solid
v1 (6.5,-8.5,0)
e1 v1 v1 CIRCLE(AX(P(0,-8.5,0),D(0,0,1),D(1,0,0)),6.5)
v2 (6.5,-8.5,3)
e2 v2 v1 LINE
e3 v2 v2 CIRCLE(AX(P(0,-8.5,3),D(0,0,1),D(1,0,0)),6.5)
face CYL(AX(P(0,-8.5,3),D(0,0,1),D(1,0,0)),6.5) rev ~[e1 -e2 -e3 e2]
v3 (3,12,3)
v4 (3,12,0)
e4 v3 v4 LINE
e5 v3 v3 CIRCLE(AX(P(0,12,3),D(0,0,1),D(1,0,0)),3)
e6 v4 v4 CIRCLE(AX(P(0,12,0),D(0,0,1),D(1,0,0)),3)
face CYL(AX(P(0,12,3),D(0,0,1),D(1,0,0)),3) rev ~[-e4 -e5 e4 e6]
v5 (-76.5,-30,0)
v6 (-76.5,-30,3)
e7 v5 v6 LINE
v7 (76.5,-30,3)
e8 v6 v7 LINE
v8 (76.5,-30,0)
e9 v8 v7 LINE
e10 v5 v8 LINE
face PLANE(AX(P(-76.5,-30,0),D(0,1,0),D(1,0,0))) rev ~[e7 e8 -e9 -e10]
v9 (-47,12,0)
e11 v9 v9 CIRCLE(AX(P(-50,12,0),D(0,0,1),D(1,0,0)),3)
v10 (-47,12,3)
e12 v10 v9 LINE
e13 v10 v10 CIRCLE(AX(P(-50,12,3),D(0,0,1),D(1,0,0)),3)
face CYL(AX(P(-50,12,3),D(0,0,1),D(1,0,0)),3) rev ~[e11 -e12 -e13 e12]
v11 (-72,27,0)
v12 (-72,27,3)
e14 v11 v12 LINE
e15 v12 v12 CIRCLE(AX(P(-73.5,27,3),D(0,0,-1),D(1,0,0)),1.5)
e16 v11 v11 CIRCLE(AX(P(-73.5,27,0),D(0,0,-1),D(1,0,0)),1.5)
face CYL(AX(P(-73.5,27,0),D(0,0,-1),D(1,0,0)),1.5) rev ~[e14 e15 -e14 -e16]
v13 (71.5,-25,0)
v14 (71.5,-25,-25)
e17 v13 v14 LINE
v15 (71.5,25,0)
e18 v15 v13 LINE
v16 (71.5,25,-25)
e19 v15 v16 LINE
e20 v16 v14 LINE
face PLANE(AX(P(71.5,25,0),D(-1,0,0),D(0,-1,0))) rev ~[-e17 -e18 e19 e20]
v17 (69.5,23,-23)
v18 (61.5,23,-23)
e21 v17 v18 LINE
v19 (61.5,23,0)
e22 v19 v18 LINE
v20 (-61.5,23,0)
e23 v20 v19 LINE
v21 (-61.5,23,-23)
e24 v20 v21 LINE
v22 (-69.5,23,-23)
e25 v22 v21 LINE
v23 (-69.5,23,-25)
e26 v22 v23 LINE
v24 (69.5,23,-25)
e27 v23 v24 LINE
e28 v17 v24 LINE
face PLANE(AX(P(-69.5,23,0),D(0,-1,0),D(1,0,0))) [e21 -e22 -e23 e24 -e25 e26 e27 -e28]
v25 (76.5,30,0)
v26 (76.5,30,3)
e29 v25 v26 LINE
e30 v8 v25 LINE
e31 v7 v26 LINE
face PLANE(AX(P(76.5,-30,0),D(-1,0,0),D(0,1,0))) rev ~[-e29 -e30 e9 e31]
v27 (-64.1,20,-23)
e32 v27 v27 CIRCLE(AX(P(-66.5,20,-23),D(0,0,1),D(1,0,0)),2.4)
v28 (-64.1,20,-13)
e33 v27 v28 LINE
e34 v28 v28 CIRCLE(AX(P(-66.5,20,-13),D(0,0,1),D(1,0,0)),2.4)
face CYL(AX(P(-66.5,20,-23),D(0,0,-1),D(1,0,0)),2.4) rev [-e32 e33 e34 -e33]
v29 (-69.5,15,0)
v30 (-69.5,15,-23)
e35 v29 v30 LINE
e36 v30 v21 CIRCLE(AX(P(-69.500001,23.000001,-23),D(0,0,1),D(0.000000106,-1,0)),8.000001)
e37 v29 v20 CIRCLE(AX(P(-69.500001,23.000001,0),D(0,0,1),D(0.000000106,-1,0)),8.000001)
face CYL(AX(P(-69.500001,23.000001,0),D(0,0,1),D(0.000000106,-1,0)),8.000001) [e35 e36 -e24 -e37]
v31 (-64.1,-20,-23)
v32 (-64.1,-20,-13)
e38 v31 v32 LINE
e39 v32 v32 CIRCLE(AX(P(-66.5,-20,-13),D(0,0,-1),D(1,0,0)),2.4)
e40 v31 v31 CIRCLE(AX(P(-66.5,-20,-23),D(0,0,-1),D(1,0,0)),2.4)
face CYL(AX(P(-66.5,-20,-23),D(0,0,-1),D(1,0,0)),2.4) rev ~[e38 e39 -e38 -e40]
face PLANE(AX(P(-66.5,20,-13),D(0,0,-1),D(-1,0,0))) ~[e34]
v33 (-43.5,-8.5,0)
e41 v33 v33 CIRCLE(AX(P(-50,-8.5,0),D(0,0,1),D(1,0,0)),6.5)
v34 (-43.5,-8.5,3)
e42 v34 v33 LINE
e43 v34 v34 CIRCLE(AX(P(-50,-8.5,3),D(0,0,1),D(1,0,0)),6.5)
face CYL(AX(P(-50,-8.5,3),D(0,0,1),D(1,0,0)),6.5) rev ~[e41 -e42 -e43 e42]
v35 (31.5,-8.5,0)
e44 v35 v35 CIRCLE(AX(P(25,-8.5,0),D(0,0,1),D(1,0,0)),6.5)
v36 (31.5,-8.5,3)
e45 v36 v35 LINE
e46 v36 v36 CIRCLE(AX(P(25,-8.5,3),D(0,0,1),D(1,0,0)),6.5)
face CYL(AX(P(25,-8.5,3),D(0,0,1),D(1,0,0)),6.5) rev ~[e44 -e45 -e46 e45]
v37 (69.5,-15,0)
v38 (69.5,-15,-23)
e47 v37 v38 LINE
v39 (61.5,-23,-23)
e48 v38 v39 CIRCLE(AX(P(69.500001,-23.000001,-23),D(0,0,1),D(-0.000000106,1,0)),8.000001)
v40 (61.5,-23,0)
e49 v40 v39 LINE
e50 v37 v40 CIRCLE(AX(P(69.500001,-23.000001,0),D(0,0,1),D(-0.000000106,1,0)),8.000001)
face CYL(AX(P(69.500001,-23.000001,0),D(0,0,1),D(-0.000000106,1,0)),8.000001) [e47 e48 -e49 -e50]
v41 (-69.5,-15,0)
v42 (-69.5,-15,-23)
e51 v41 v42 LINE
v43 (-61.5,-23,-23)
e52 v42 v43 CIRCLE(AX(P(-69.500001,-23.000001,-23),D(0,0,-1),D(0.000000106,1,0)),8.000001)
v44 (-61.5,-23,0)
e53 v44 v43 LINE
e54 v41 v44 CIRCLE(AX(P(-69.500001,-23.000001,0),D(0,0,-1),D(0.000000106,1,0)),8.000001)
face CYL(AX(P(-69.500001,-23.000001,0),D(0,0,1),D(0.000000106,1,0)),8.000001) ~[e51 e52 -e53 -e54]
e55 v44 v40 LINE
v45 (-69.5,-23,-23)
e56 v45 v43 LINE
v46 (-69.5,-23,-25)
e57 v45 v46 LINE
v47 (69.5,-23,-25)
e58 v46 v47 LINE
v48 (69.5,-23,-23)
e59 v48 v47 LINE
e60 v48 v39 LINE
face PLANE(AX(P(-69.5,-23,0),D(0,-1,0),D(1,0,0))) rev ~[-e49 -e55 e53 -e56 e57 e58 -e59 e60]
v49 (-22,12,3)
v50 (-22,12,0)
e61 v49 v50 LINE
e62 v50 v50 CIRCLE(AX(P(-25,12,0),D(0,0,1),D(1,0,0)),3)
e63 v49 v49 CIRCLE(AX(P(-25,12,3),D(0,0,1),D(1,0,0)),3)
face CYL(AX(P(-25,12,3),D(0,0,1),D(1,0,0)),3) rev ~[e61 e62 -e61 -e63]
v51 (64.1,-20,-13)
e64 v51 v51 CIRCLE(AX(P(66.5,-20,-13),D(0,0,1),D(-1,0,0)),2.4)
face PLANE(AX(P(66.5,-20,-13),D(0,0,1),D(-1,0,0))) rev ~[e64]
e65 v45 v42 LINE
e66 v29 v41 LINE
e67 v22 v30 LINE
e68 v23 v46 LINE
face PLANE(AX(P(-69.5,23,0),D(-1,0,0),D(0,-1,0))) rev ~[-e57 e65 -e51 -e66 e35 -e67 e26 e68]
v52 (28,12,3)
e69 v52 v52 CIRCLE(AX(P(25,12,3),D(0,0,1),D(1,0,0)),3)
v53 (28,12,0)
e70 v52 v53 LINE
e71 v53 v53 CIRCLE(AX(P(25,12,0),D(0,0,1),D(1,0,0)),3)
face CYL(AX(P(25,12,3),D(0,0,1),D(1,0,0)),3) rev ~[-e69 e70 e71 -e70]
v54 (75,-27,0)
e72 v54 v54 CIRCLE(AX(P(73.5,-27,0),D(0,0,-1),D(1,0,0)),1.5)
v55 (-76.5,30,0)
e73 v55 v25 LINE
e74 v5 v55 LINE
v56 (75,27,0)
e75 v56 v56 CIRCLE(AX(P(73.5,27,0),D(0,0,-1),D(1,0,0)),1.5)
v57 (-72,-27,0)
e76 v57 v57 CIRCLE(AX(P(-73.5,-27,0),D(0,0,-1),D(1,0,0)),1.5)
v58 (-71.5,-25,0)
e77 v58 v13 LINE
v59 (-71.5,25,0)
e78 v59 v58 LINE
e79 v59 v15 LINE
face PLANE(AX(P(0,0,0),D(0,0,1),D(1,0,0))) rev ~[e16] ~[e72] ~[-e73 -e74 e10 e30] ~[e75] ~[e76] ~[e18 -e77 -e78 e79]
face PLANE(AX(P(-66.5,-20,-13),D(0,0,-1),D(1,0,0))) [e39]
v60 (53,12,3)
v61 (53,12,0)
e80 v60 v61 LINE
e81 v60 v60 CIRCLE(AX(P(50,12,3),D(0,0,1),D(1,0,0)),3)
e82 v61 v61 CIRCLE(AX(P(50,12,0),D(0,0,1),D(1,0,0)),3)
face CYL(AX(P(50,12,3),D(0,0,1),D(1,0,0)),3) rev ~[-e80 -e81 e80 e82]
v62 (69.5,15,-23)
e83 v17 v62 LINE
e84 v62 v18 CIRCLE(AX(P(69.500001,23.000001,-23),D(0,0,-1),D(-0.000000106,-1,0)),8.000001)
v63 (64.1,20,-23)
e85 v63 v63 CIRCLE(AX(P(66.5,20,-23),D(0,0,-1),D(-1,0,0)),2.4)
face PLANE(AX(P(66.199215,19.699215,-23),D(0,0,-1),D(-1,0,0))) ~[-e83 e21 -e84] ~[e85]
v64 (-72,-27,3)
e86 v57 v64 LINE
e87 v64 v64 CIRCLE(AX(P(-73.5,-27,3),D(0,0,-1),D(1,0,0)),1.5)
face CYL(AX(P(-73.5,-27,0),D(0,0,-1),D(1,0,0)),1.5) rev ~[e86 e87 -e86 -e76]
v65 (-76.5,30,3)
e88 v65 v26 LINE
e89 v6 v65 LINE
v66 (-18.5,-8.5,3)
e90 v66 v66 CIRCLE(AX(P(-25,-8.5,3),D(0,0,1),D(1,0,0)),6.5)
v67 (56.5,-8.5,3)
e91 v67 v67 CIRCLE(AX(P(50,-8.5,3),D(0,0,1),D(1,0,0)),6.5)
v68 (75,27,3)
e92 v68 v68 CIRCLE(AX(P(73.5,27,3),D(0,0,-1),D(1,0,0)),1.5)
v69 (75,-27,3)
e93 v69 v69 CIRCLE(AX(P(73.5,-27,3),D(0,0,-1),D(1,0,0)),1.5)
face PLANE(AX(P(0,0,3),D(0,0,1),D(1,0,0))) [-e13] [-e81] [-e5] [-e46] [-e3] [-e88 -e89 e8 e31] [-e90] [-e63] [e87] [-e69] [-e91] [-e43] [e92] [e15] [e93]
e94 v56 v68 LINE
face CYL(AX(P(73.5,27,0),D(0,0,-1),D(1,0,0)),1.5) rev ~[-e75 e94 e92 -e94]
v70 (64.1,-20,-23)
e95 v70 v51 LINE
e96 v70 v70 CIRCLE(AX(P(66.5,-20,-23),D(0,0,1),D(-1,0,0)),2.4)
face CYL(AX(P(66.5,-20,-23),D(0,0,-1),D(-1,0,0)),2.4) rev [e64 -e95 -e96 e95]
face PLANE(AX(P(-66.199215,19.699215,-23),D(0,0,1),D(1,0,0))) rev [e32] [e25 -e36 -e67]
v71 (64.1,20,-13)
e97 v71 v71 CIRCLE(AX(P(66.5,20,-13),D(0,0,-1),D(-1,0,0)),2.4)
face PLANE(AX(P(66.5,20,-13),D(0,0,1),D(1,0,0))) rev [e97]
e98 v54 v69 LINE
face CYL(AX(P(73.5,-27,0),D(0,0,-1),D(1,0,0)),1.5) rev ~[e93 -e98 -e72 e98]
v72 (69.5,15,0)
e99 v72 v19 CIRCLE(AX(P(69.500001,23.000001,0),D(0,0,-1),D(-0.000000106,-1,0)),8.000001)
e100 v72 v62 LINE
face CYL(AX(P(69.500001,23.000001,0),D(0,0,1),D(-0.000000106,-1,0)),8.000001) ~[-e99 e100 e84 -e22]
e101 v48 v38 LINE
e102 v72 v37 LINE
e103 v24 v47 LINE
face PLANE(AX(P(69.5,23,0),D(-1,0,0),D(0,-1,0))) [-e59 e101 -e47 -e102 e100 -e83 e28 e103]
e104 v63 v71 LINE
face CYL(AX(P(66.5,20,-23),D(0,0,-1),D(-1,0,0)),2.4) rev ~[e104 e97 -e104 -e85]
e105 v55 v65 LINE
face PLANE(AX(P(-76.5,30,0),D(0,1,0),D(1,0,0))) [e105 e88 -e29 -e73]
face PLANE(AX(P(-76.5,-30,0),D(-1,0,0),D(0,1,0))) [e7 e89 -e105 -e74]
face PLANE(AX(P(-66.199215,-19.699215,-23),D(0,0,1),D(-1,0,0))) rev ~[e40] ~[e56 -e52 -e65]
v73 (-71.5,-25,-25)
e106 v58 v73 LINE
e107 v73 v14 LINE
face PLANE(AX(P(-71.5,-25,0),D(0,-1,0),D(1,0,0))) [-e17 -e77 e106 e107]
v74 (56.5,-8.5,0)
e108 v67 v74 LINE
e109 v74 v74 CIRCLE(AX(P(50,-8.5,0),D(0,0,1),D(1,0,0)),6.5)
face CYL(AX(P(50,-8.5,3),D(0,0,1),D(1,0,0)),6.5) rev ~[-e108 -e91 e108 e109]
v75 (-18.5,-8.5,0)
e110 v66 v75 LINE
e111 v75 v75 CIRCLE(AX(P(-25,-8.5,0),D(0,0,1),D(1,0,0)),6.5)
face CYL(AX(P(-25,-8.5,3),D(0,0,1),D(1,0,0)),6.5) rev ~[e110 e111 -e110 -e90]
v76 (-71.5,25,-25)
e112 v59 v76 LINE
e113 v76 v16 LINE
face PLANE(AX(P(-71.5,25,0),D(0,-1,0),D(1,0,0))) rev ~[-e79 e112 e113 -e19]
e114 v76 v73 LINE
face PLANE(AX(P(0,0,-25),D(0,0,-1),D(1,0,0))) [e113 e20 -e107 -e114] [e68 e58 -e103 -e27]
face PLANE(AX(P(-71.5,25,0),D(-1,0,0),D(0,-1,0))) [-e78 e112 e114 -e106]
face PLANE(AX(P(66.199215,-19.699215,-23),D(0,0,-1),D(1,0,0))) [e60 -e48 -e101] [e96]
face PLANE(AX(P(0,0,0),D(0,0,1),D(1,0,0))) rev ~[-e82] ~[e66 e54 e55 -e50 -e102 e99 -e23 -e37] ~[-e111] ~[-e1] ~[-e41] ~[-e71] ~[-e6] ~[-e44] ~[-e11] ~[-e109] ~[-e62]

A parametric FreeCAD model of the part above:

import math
import FreeCAD as App
import Part
import Sketcher

doc = App.newDocument("Part")
body = doc.addObject("PartDesign::Body", "Body")

# Sketch on XY plane
sketch1 = doc.addObject("Sketcher::SketchObject", "Sketch")
body.addObject(sketch1)
sketch1.AttachmentSupport = (doc.XY_Plane, [""])
sketch1.MapMode = "FlatFace"
sketch1.addGeometry(Part.LineSegment(App.Vector(-76, 30, 0), App.Vector(-76, -30, 0)), False)
sketch1.addGeometry(Part.LineSegment(App.Vector(-76, -30, 0), App.Vector(76, -30, 0)), False)
sketch1.addGeometry(Part.LineSegment(App.Vector(76, -30, 0), App.Vector(76, 30, 0)), False)
sketch1.addGeometry(Part.LineSegment(App.Vector(76, 30, 0), App.Vector(-76, 30, 0)), False)
sketch1.addConstraint(Sketcher.Constraint("Coincident", 0, 2, 1, 1))
sketch1.addConstraint(Sketcher.Constraint("Coincident", 1, 2, 2, 1))
sketch1.addConstraint(Sketcher.Constraint("Coincident", 2, 2, 3, 1))
sketch1.addConstraint(Sketcher.Constraint("Coincident", 3, 2, 0, 1))
sketch1.addConstraint(Sketcher.Constraint("Vertical", 0))
sketch1.addConstraint(Sketcher.Constraint("Horizontal", 1))
sketch1.addConstraint(Sketcher.Constraint("Vertical", 2))
sketch1.addConstraint(Sketcher.Constraint("Horizontal", 3))
sketch1.addConstraint(Sketcher.Constraint("Symmetric", 0, 2, 2, 2, -1, 1))
sketch1.addConstraint(Sketcher.Constraint("DistanceX", 1, 1, 1, 2, 153.0))
sketch1.addConstraint(Sketcher.Constraint("DistanceY", 0, 2, 0, 1, 60.0))
pad1 = doc.addObject("PartDesign::Pad", "Pad")
body.addObject(pad1)
pad1.Profile = sketch1
pad1.Length = 3

# Sketch on XY plane
sketch2 = doc.addObject("Sketcher::SketchObject", "Sketch001")
body.addObject(sketch2)
sketch2.AttachmentSupport = (doc.XY_Plane, [""])
sketch2.MapMode = "FlatFace"
sketch2.addGeometry(Part.LineSegment(App.Vector(-72, -25, 0), App.Vector(-72, 25, 0)), False)
sketch2.addGeometry(Part.LineSegment(App.Vector(-72, 25, 0), App.Vector(72, 25, 0)), False)
sketch2.addGeometry(Part.LineSegment(App.Vector(72, 25, 0), App.Vector(72, -25, 0)), False)
sketch2.addGeometry(Part.LineSegment(App.Vector(72, -25, 0), App.Vector(-72, -25, 0)), False)
sketch2.addGeometry(Part.LineSegment(App.Vector(70, 23, 0), App.Vector(-70, 23, 0)), False)
sketch2.addGeometry(Part.LineSegment(App.Vector(-70, 23, 0), App.Vector(-70, -23, 0)), False)
sketch2.addGeometry(Part.LineSegment(App.Vector(-70, -23, 0), App.Vector(70, -23, 0)), False)
sketch2.addGeometry(Part.LineSegment(App.Vector(70, -23, 0), App.Vector(70, 23, 0)), False)
sketch2.addConstraint(Sketcher.Constraint("Coincident", 0, 2, 1, 1))
sketch2.addConstraint(Sketcher.Constraint("Coincident", 1, 2, 2, 1))
sketch2.addConstraint(Sketcher.Constraint("Coincident", 2, 2, 3, 1))
sketch2.addConstraint(Sketcher.Constraint("Coincident", 3, 2, 0, 1))
sketch2.addConstraint(Sketcher.Constraint("Coincident", 4, 2, 5, 1))
sketch2.addConstraint(Sketcher.Constraint("Coincident", 5, 2, 6, 1))
sketch2.addConstraint(Sketcher.Constraint("Coincident", 6, 2, 7, 1))
sketch2.addConstraint(Sketcher.Constraint("Coincident", 7, 2, 4, 1))
sketch2.addConstraint(Sketcher.Constraint("Vertical", 0))
sketch2.addConstraint(Sketcher.Constraint("Horizontal", 1))
sketch2.addConstraint(Sketcher.Constraint("Vertical", 2))
sketch2.addConstraint(Sketcher.Constraint("Horizontal", 3))
sketch2.addConstraint(Sketcher.Constraint("Horizontal", 4))
sketch2.addConstraint(Sketcher.Constraint("Vertical", 5))
sketch2.addConstraint(Sketcher.Constraint("Horizontal", 6))
sketch2.addConstraint(Sketcher.Constraint("Vertical", 7))
sketch2.addConstraint(Sketcher.Constraint("Symmetric", 0, 2, 2, 2, -1, 1))
sketch2.addConstraint(Sketcher.Constraint("Symmetric", 4, 2, 6, 2, -1, 1))
sketch2.addConstraint(Sketcher.Constraint("DistanceX", 1, 1, 1, 2, 143.0))
sketch2.addConstraint(Sketcher.Constraint("DistanceX", 4, 2, 4, 1, 139.0))
sketch2.addConstraint(Sketcher.Constraint("DistanceY", 0, 1, 0, 2, 50.0))
sketch2.addConstraint(Sketcher.Constraint("DistanceY", 5, 2, 5, 1, 46.0))
pad2 = doc.addObject("PartDesign::Pad", "Pad001")
body.addObject(pad2)
pad2.Profile = sketch2
pad2.Length = 25
pad2.Reversed = True

# Sketch on XY plane
sketch3 = doc.addObject("Sketcher::SketchObject", "Sketch002")
body.addObject(sketch3)
sketch3.AttachmentSupport = (doc.XY_Plane, [""])
sketch3.MapMode = "FlatFace"
sketch3.addGeometry(Part.Circle(App.Vector(-73.5, -27, 0), App.Vector(0, 0, 1), 1.5), False)
sketch3.addGeometry(Part.Circle(App.Vector(-73.5, 27, 0), App.Vector(0, 0, 1), 1.5), False)
sketch3.addGeometry(Part.Circle(App.Vector(73.5, 27, 0), App.Vector(0, 0, 1), 1.5), False)
sketch3.addGeometry(Part.Circle(App.Vector(73.5, -27, 0), App.Vector(0, 0, 1), 1.5), False)
sketch3.addConstraint(Sketcher.Constraint("Equal", 0, 1))
sketch3.addConstraint(Sketcher.Constraint("Equal", 1, 2))
sketch3.addConstraint(Sketcher.Constraint("Equal", 2, 3))
sketch3.addConstraint(Sketcher.Constraint("Symmetric", 0, 3, 2, 3, -1, 1))
sketch3.addConstraint(Sketcher.Constraint("Symmetric", 1, 3, 3, 3, -1, 1))
sketch3.addConstraint(Sketcher.Constraint("Symmetric", 1, 3, 2, 3, -2))
sketch3.addConstraint(Sketcher.Constraint("Diameter", 0, 3.0))
sketch3.addConstraint(Sketcher.Constraint("DistanceY", 0, 3, -1, 1, 27.0))
sketch3.addConstraint(Sketcher.Constraint("DistanceX", 1, 3, 2, 3, 147.0))
pocket1 = doc.addObject("PartDesign::Pocket", "Pocket")
body.addObject(pocket1)
pocket1.Profile = sketch3
pocket1.Type = "ThroughAll"
pocket1.Reversed = True

# Sketch on XY plane
sketch4 = doc.addObject("Sketcher::SketchObject", "Sketch003")
body.addObject(sketch4)
sketch4.AttachmentSupport = (doc.XY_Plane, [""])
sketch4.MapMode = "FlatFace"
sketch4.addGeometry(Part.LineSegment(App.Vector(-62, -23, 0), App.Vector(-70, -23, 0)), False)
sketch4.addGeometry(Part.LineSegment(App.Vector(-70, -23, 0), App.Vector(-70, -15, 0)), False)
sketch4.addGeometry(Part.ArcOfCircle(Part.Circle(App.Vector(-70, -23, 0), App.Vector(0, 0, 1), 8), math.radians(0), math.radians(90)), False)
sketch4.addConstraint(Sketcher.Constraint("Coincident", 0, 2, 1, 1))
sketch4.addConstraint(Sketcher.Constraint("Coincident", 1, 2, 2, 2))
sketch4.addConstraint(Sketcher.Constraint("Coincident", 2, 1, 0, 1))
sketch4.addConstraint(Sketcher.Constraint("Horizontal", 0))
sketch4.addConstraint(Sketcher.Constraint("Vertical", 1))
sketch4.addConstraint(Sketcher.Constraint("Coincident", 0, 2, 2, 3))
sketch4.addConstraint(Sketcher.Constraint("Radius", 2, 8.000001))
sketch4.addConstraint(Sketcher.Constraint("DistanceY", 2, 3, -1, 1, 23.000001))
sketch4.addConstraint(Sketcher.Constraint("DistanceX", 2, 3, -1, 1, 69.500001))
pad3 = doc.addObject("PartDesign::Pad", "Pad002")
body.addObject(pad3)
pad3.Profile = sketch4
pad3.Length = 23
pad3.Reversed = True

# Sketch on XY plane
sketch5 = doc.addObject("Sketcher::SketchObject", "Sketch004")
body.addObject(sketch5)
sketch5.AttachmentSupport = (doc.XY_Plane, [""])
sketch5.MapMode = "FlatFace"
sketch5.addGeometry(Part.LineSegment(App.Vector(62, -23, 0), App.Vector(70, -23, 0)), False)
sketch5.addGeometry(Part.LineSegment(App.Vector(70, -23, 0), App.Vector(70, -15, 0)), False)
sketch5.addGeometry(Part.ArcOfCircle(Part.Circle(App.Vector(70, -23, 0), App.Vector(0, 0, 1), 8), math.radians(90), math.radians(180)), False)
sketch5.addConstraint(Sketcher.Constraint("Coincident", 0, 2, 1, 1))
sketch5.addConstraint(Sketcher.Constraint("Coincident", 1, 2, 2, 1))
sketch5.addConstraint(Sketcher.Constraint("Coincident", 2, 2, 0, 1))
sketch5.addConstraint(Sketcher.Constraint("Horizontal", 0))
sketch5.addConstraint(Sketcher.Constraint("Vertical", 1))
sketch5.addConstraint(Sketcher.Constraint("Coincident", 0, 2, 2, 3))
sketch5.addConstraint(Sketcher.Constraint("Radius", 2, 8.000001))
sketch5.addConstraint(Sketcher.Constraint("DistanceY", 2, 3, -1, 1, 23.000001))
sketch5.addConstraint(Sketcher.Constraint("DistanceX", -1, 1, 2, 3, 69.500001))
pad4 = doc.addObject("PartDesign::Pad", "Pad003")
body.addObject(pad4)
pad4.Profile = sketch5
pad4.Length = 23
pad4.Reversed = True
doc.recompute()

mirrored = doc.addObject("PartDesign::Mirrored", "Mirrored")
body.addObject(mirrored)
mirrored.Originals = [pad3, pad4]
mirrored.MirrorPlane = (doc.XZ_Plane, [""])
body.Tip = mirrored

# Sketch on XY plane
sketch6 = doc.addObject("Sketcher::SketchObject", "Sketch005")
body.addObject(sketch6)
sketch6.AttachmentSupport = (doc.XY_Plane, [""])
sketch6.MapMode = "FlatFace"
sketch6.AttachmentOffset = App.Placement(App.Vector(0, 0, -23), App.Rotation())
sketch6.addGeometry(Part.Circle(App.Vector(-66.5, -20, 0), App.Vector(0, 0, 1), 2.4), False)
sketch6.addConstraint(Sketcher.Constraint("Diameter", 0, 4.8))
sketch6.addConstraint(Sketcher.Constraint("DistanceY", 0, 3, -1, 1, 20.0))
sketch6.addConstraint(Sketcher.Constraint("DistanceX", 0, 3, -1, 1, 66.5))
pocket2 = doc.addObject("PartDesign::Pocket", "Pocket001")
body.addObject(pocket2)
pocket2.Profile = sketch6
pocket2.Length = 10
pocket2.Reversed = True

# Sketch on XY plane
sketch7 = doc.addObject("Sketcher::SketchObject", "Sketch006")
body.addObject(sketch7)
sketch7.AttachmentSupport = (doc.XY_Plane, [""])
sketch7.MapMode = "FlatFace"
sketch7.AttachmentOffset = App.Placement(App.Vector(0, 0, -23), App.Rotation())
sketch7.addGeometry(Part.Circle(App.Vector(66.5, -20, 0), App.Vector(0, 0, 1), 2.4), False)
sketch7.addConstraint(Sketcher.Constraint("Diameter", 0, 4.8))
sketch7.addConstraint(Sketcher.Constraint("DistanceY", 0, 3, -1, 1, 20.0))
sketch7.addConstraint(Sketcher.Constraint("DistanceX", -1, 1, 0, 3, 66.5))
pocket3 = doc.addObject("PartDesign::Pocket", "Pocket002")
body.addObject(pocket3)
pocket3.Profile = sketch7
pocket3.Length = 10
pocket3.Reversed = True
doc.recompute()

mirrored2 = doc.addObject("PartDesign::Mirrored", "Mirrored001")
body.addObject(mirrored2)
mirrored2.Originals = [pocket2, pocket3]
mirrored2.MirrorPlane = (doc.XZ_Plane, [""])
body.Tip = mirrored2

# Sketch on XY plane
sketch8 = doc.addObject("Sketcher::SketchObject", "Sketch007")
body.addObject(sketch8)
sketch8.AttachmentSupport = (doc.XY_Plane, [""])
sketch8.MapMode = "FlatFace"
sketch8.AttachmentOffset = App.Placement(App.Vector(0, 0, 3), App.Rotation())
sketch8.addGeometry(Part.Circle(App.Vector(-50, -8.5, 0), App.Vector(0, 0, 1), 6.5), False)
sketch8.addGeometry(Part.Circle(App.Vector(-25, -8.5, 0), App.Vector(0, 0, 1), 6.5), False)
sketch8.addGeometry(Part.Circle(App.Vector(0, -8.5, 0), App.Vector(0, 0, 1), 6.5), False)
sketch8.addGeometry(Part.Circle(App.Vector(25, -8.5, 0), App.Vector(0, 0, 1), 6.5), False)
sketch8.addGeometry(Part.Circle(App.Vector(50, -8.5, 0), App.Vector(0, 0, 1), 6.5), False)
sketch8.addGeometry(Part.Circle(App.Vector(-50, 12, 0), App.Vector(0, 0, 1), 3), False)
sketch8.addGeometry(Part.Circle(App.Vector(-25, 12, 0), App.Vector(0, 0, 1), 3), False)
sketch8.addGeometry(Part.Circle(App.Vector(0, 12, 0), App.Vector(0, 0, 1), 3), False)
sketch8.addGeometry(Part.Circle(App.Vector(25, 12, 0), App.Vector(0, 0, 1), 3), False)
sketch8.addGeometry(Part.Circle(App.Vector(50, 12, 0), App.Vector(0, 0, 1), 3), False)
sketch8.addConstraint(Sketcher.Constraint("Equal", 0, 1))
sketch8.addConstraint(Sketcher.Constraint("Equal", 1, 2))
sketch8.addConstraint(Sketcher.Constraint("Equal", 2, 3))
sketch8.addConstraint(Sketcher.Constraint("Equal", 3, 4))
sketch8.addConstraint(Sketcher.Constraint("Equal", 5, 6))
sketch8.addConstraint(Sketcher.Constraint("Equal", 6, 7))
sketch8.addConstraint(Sketcher.Constraint("Equal", 7, 8))
sketch8.addConstraint(Sketcher.Constraint("Equal", 8, 9))
sketch8.addConstraint(Sketcher.Constraint("Symmetric", 1, 3, 3, 3, -2))
sketch8.addConstraint(Sketcher.Constraint("Symmetric", 0, 3, 4, 3, -2))
sketch8.addConstraint(Sketcher.Constraint("Symmetric", 6, 3, 8, 3, -2))
sketch8.addConstraint(Sketcher.Constraint("Symmetric", 5, 3, 9, 3, -2))
sketch8.addConstraint(Sketcher.Constraint("PointOnObject", 2, 3, -2))
sketch8.addConstraint(Sketcher.Constraint("PointOnObject", 7, 3, -2))
sketch8.addConstraint(Sketcher.Constraint("Horizontal", 0, 3, 1, 3))
sketch8.addConstraint(Sketcher.Constraint("Horizontal", 1, 3, 2, 3))
sketch8.addConstraint(Sketcher.Constraint("Horizontal", 5, 3, 6, 3))
sketch8.addConstraint(Sketcher.Constraint("Horizontal", 6, 3, 7, 3))
sketch8.addConstraint(Sketcher.Constraint("Vertical", 0, 3, 5, 3))
sketch8.addConstraint(Sketcher.Constraint("Vertical", 1, 3, 6, 3))
sketch8.addConstraint(Sketcher.Constraint("Diameter", 0, 13.0))
sketch8.addConstraint(Sketcher.Constraint("Diameter", 5, 6.0))
sketch8.addConstraint(Sketcher.Constraint("DistanceX", 0, 3, -1, 1, 50.0))
sketch8.addConstraint(Sketcher.Constraint("DistanceX", 1, 3, -1, 1, 25.0))
sketch8.addConstraint(Sketcher.Constraint("DistanceY", -1, 1, 5, 3, 12.0))
sketch8.addConstraint(Sketcher.Constraint("DistanceY", 0, 3, -1, 1, 8.5))
pocket4 = doc.addObject("PartDesign::Pocket", "Pocket003")
body.addObject(pocket4)
pocket4.Profile = sketch8
pocket4.Type = "ThroughAll"

doc.recompute()
